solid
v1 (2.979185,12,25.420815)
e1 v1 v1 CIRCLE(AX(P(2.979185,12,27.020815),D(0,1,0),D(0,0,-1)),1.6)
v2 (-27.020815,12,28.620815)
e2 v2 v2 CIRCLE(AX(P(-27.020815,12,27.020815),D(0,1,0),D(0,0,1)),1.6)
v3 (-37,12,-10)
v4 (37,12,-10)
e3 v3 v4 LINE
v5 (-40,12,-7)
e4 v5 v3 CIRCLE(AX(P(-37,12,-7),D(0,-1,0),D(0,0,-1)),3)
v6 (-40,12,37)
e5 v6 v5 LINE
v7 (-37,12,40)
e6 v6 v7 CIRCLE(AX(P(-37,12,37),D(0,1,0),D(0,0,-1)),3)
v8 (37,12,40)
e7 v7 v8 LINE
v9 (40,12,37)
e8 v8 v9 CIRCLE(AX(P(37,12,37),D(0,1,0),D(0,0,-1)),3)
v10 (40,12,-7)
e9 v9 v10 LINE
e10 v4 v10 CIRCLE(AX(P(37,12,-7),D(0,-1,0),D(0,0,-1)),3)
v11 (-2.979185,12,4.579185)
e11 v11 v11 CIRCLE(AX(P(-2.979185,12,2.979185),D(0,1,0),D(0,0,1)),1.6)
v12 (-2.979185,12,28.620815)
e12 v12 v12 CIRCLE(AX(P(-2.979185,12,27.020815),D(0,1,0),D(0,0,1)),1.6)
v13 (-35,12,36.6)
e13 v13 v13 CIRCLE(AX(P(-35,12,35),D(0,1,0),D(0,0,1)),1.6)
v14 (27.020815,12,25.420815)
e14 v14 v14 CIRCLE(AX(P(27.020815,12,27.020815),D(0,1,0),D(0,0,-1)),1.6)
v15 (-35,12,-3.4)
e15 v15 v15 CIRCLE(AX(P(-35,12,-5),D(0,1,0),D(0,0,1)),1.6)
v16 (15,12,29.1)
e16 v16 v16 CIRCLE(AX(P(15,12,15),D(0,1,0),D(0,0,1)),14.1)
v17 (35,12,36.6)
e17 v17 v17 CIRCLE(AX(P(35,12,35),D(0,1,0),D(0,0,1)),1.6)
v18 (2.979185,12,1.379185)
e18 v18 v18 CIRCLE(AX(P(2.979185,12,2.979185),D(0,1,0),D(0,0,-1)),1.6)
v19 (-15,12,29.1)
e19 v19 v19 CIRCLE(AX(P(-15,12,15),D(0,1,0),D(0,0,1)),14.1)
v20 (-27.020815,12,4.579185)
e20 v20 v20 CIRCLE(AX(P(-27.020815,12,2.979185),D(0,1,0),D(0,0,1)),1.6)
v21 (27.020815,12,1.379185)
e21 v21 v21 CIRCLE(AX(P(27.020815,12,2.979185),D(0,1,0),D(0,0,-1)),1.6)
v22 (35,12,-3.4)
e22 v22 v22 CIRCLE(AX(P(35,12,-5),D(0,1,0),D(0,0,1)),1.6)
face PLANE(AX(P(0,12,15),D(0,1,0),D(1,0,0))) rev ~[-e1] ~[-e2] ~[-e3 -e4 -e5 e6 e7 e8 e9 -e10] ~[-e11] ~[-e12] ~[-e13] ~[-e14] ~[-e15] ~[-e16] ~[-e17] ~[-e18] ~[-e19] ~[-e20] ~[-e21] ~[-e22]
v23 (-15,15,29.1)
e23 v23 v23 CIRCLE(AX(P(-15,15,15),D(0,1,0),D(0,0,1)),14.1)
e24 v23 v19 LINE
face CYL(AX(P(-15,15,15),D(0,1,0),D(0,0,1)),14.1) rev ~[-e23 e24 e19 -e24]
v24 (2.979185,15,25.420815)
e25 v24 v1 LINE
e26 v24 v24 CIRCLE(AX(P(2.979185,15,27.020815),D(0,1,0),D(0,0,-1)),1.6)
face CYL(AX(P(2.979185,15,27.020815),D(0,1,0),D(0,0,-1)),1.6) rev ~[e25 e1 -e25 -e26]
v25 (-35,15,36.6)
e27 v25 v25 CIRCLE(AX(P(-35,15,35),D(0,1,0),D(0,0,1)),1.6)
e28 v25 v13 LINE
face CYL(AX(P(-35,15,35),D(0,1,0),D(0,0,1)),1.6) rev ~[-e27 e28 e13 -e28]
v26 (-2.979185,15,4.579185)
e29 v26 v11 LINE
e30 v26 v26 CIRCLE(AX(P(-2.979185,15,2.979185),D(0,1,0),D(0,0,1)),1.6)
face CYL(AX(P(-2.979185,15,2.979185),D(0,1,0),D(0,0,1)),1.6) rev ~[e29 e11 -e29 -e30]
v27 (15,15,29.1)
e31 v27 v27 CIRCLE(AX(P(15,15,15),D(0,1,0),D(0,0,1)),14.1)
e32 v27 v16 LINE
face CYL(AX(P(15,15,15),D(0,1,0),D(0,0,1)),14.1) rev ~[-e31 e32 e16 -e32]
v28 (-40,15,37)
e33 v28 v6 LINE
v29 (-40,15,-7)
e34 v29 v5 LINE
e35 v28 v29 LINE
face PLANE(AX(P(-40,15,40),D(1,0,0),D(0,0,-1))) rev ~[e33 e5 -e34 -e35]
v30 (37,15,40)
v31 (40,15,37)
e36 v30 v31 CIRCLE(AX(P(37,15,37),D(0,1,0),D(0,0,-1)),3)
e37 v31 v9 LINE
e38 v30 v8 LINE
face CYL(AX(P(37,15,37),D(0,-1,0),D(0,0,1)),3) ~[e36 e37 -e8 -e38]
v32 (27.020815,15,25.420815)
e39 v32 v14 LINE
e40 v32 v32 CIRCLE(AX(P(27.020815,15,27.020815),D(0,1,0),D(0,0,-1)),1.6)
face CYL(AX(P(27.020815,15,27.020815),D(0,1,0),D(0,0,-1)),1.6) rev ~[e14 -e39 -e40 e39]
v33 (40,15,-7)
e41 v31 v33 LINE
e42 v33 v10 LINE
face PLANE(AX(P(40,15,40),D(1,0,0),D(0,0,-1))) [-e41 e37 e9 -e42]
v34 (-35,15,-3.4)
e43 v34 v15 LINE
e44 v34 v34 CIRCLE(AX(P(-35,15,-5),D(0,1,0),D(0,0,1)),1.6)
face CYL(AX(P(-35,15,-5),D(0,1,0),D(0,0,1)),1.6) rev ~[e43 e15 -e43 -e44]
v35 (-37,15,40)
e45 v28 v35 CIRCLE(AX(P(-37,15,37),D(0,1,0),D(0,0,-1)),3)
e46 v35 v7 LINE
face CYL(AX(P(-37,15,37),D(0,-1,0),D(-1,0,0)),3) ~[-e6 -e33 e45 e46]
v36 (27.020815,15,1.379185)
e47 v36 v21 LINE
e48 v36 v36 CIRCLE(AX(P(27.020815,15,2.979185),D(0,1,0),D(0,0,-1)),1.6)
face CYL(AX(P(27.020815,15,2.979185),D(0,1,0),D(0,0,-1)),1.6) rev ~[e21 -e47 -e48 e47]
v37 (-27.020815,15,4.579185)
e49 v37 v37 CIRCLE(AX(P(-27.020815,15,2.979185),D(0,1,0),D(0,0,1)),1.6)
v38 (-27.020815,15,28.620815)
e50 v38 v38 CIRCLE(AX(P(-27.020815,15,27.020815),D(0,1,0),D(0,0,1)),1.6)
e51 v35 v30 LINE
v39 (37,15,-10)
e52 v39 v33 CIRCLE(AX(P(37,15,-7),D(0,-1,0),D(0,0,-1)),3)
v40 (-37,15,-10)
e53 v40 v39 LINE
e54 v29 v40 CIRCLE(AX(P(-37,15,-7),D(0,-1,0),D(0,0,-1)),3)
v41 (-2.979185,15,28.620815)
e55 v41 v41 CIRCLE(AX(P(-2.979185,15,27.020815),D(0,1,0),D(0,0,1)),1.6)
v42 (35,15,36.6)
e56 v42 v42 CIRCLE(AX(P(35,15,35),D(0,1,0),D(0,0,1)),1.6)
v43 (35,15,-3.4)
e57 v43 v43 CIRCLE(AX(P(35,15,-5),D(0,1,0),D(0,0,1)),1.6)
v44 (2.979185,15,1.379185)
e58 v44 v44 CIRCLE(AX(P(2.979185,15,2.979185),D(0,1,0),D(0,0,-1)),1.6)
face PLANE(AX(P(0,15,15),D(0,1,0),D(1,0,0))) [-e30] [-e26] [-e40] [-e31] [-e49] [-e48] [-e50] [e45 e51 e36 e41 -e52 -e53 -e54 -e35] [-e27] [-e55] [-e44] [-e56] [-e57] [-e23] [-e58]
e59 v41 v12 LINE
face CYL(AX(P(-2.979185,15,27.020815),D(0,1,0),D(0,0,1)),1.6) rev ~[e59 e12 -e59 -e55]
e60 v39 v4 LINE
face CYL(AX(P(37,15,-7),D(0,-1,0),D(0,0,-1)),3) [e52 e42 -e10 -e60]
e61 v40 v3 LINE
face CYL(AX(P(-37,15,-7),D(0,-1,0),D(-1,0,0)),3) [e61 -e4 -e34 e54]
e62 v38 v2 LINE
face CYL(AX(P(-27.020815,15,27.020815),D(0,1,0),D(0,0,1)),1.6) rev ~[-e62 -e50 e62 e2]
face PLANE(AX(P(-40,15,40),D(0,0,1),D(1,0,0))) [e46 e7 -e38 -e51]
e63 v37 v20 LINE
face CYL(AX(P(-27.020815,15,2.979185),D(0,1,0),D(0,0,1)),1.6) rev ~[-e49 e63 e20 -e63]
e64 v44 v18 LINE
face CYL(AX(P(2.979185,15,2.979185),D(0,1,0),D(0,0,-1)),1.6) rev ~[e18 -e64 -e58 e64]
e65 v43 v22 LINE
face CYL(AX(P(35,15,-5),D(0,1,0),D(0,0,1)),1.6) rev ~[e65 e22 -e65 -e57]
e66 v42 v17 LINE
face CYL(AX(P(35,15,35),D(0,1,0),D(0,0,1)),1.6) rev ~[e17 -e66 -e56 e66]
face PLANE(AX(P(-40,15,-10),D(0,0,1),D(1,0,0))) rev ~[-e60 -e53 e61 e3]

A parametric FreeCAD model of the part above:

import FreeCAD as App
import Part
import Sketcher
from FreeCAD import Vector


def edges_at(feature, points):
    """Names of the edges that pass closest to the given points."""
    edges = feature.Shape.Edges
    near = lambda p: min(range(len(edges)), key=lambda i: edges[i].distToShape(Part.Vertex(*p))[0])
    return sorted({f"Edge{near(p) + 1}" for p in points})

doc = App.newDocument("Part")
body = doc.addObject("PartDesign::Body", "Body")

sketch1 = body.newObject("Sketcher::SketchObject", "Sketch")
sketch1.AttachmentSupport = (doc.getObject("XY_Plane"), [""])
sketch1.MapMode = "FlatFace"
sketch1.addGeometry([
    Part.LineSegment(Vector(-30, 15, 0), Vector(-30, -15, 0)),
    Part.LineSegment(Vector(-30, -15, 0), Vector(30, -15, 0)),
    Part.LineSegment(Vector(30, -15, 0), Vector(30, 15, 0)),
    Part.LineSegment(Vector(30, 15, 0), Vector(-30, 15, 0)),
], False)
sketch1.addConstraint([
    Sketcher.Constraint("Coincident", 0, 2, 1, 1),
    Sketcher.Constraint("Coincident", 1, 2, 2, 1),
    Sketcher.Constraint("Coincident", 2, 2, 3, 1),
    Sketcher.Constraint("Coincident", 3, 2, 0, 1),
    Sketcher.Constraint("Vertical", 0),
    Sketcher.Constraint("Horizontal", 1),
    Sketcher.Constraint("Vertical", 2),
    Sketcher.Constraint("Horizontal", 3),
    Sketcher.Constraint("Symmetric", 0, 2, 2, 2, -1, 1),
    Sketcher.Constraint("DistanceX", 1, 1, 1, 2, 60.0),
    Sketcher.Constraint("DistanceY", 0, 2, 0, 1, 30.0),
])
pad1 = body.newObject("PartDesign::Pad", "Pad")
pad1.Profile = sketch1
pad1.Length = 30

sketch2 = body.newObject("Sketcher::SketchObject", "Sketch001")
sketch2.AttachmentSupport = (doc.getObject("XZ_Plane"), [""])
sketch2.MapMode = "FlatFace"
sketch2.AttachmentOffset = App.Placement(Vector(0, 0, 15), App.Rotation())
sketch2.addGeometry([
    Part.LineSegment(Vector(-30, 30, 0), Vector(-30, 0, 0)),
    Part.LineSegment(Vector(-30, 0, 0), Vector(30, 0, 0)),
    Part.LineSegment(Vector(30, 0, 0), Vector(30, 30, 0)),
    Part.LineSegment(Vector(30, 30, 0), Vector(-30, 30, 0)),
], False)
sketch2.addConstraint([
    Sketcher.Constraint("Coincident", 0, 2, 1, 1),
    Sketcher.Constraint("Coincident", 1, 2, 2, 1),
    Sketcher.Constraint("Coincident", 2, 2, 3, 1),
    Sketcher.Constraint("Coincident", 3, 2, 0, 1),
    Sketcher.Constraint("Vertical", 0),
    Sketcher.Constraint("Horizontal", 1),
    Sketcher.Constraint("Vertical", 2),
    Sketcher.Constraint("Horizontal", 3),
    Sketcher.Constraint("Symmetric", 0, 2, 1, 2, -1, 1),
    Sketcher.Constraint("DistanceX", 1, 1, 1, 2, 60.0),
    Sketcher.Constraint("DistanceY", 0, 2, 0, 1, 30.0),
])
pocket1 = body.newObject("PartDesign::Pocket", "Pocket")
pocket1.Profile = sketch2
pocket1.Length = 27

sketch3 = body.newObject("Sketcher::SketchObject", "Sketch002")
sketch3.AttachmentSupport = (doc.getObject("XZ_Plane"), [""])
sketch3.MapMode = "FlatFace"
sketch3.AttachmentOffset = App.Placement(Vector(0, 0, -15), App.Rotation())
sketch3.addGeometry([
    Part.Circle(Vector(-27.020815, 2.979185, 0), Vector(0, 0, 1), 1.6),
    Part.Circle(Vector(-2.979185, 2.979185, 0), Vector(0, 0, 1), 1.6),
    Part.Circle(Vector(-2.979185, 27.020815, 0), Vector(0, 0, 1), 1.6),
    Part.Circle(Vector(-27.020815, 27.020815, 0), Vector(0, 0, 1), 1.6),
    Part.Circle(Vector(27.020815, 27.020815, 0), Vector(0, 0, 1), 1.6),
    Part.Circle(Vector(2.979185, 27.020815, 0), Vector(0, 0, 1), 1.6),
    Part.Circle(Vector(2.979185, 2.979185, 0), Vector(0, 0, 1), 1.6),
    Part.Circle(Vector(27.020815, 2.979185, 0), Vector(0, 0, 1), 1.6),
    Part.Circle(Vector(-15, 15, 0), Vector(0, 0, 1), 14.1),
    Part.Circle(Vector(15, 15, 0), Vector(0, 0, 1), 14.1),
], False)
sketch3.addConstraint([
    Sketcher.Constraint("Equal", 0, 1),
    Sketcher.Constraint("Equal", 1, 2),
    Sketcher.Constraint("Equal", 2, 3),
    Sketcher.Constraint("Equal", 3, 4),
    Sketcher.Constraint("Equal", 4, 5),
    Sketcher.Constraint("Equal", 5, 6),
    Sketcher.Constraint("Equal", 6, 7),
    Sketcher.Constraint("Equal", 8, 9),
    Sketcher.Constraint("Symmetric", 3, 3, 4, 3, -2),
    Sketcher.Constraint("Symmetric", 2, 3, 5, 3, -2),
    Sketcher.Constraint("Symmetric", 1, 3, 6, 3, -2),
    Sketcher.Constraint("Symmetric", 0, 3, 7, 3, -2),
    Sketcher.Constraint("Symmetric", 8, 3, 9, 3, -2),
    Sketcher.Constraint("Horizontal", 0, 3, 1, 3),
    Sketcher.Constraint("Horizontal", 2, 3, 3, 3),
    Sketcher.Constraint("Vertical", 1, 3, 2, 3),
    Sketcher.Constraint("Vertical", 0, 3, 3, 3),
    Sketcher.Constraint("Diameter", 0, 3.2),
    Sketcher.Constraint("Diameter", 8, 28.2),
    Sketcher.Constraint("DistanceX", 8, 3, -1, 1, 15.0),
    Sketcher.Constraint("DistanceY", -1, 1, 8, 3, 15.0),
    Sketcher.Constraint("DistanceX", 2, 3, 4, 3, 30.0),
    Sketcher.Constraint("DistanceX", 0, 3, 1, 3, 24.041631),
    Sketcher.Constraint("DistanceY", 1, 3, 2, 3, 24.041631),
    Sketcher.Constraint("DistanceY", -1, 1, 0, 3, 2.979185),
])
pocket2 = body.newObject("PartDesign::Pocket", "Pocket001")
pocket2.Profile = sketch3
pocket2.Type = "ThroughAll"
pocket2.Reversed = True

sketch4 = body.newObject("Sketcher::SketchObject", "Sketch003")
sketch4.AttachmentSupport = (doc.getObject("XZ_Plane"), [""])
sketch4.MapMode = "FlatFace"
sketch4.AttachmentOffset = App.Placement(Vector(0, 0, -15), App.Rotation())
sketch4.addGeometry([
    Part.LineSegment(Vector(-40, -10, 0), Vector(-40, 40, 0)),
    Part.LineSegment(Vector(-40, 40, 0), Vector(40, 40, 0)),
    Part.LineSegment(Vector(40, 40, 0), Vector(40, -10, 0)),
    Part.LineSegment(Vector(40, -10, 0), Vector(-40, -10, 0)),
    Part.LineSegment(Vector(30, 30, 0), Vector(-30, 30, 0)),
    Part.LineSegment(Vector(-30, 30, 0), Vector(-30, 0, 0)),
    Part.LineSegment(Vector(-30, 0, 0), Vector(30, 0, 0)),
    Part.LineSegment(Vector(30, 0, 0), Vector(30, 30, 0)),
], False)
sketch4.addConstraint([
    Sketcher.Constraint("Coincident", 0, 2, 1, 1),
    Sketcher.Constraint("Coincident", 1, 2, 2, 1),
    Sketcher.Constraint("Coincident", 2, 2, 3, 1),
    Sketcher.Constraint("Coincident", 3, 2, 0, 1),
    Sketcher.Constraint("Coincident", 4, 2, 5, 1),
    Sketcher.Constraint("Coincident", 5, 2, 6, 1),
    Sketcher.Constraint("Coincident", 6, 2, 7, 1),
    Sketcher.Constraint("Coincident", 7, 2, 4, 1),
    Sketcher.Constraint("Vertical", 0),
    Sketcher.Constraint("Horizontal", 1),
    Sketcher.Constraint("Vertical", 2),
    Sketcher.Constraint("Horizontal", 3),
    Sketcher.Constraint("Horizontal", 4),
    Sketcher.Constraint("Vertical", 5),
    Sketcher.Constraint("Horizontal", 6),
    Sketcher.Constraint("Vertical", 7),
    Sketcher.Constraint("Symmetric", 5, 2, 6, 2, -1, 1),
    Sketcher.Constraint("DistanceX", 1, 1, 1, 2, 80.0),
    Sketcher.Constraint("DistanceX", 4, 2, 4, 1, 60.0),
    Sketcher.Constraint("DistanceY", 0, 1, 0, 2, 50.0),
    Sketcher.Constraint("DistanceY", 5, 2, 5, 1, 30.0),
    Sketcher.Constraint("DistanceX", 0, 2, -1, 1, 40.0),
    Sketcher.Constraint("DistanceY", -1, 1, 0, 2, 40.0),
])
pad2 = body.newObject("PartDesign::Pad", "Pad001")
pad2.Profile = sketch4
pad2.Length = 3

sketch5 = body.newObject("Sketcher::SketchObject", "Sketch004")
sketch5.AttachmentSupport = (doc.getObject("XZ_Plane"), [""])
sketch5.MapMode = "FlatFace"
sketch5.AttachmentOffset = App.Placement(Vector(0, 0, -15), App.Rotation())
sketch5.addGeometry([
    Part.Circle(Vector(-35, -5, 0), Vector(0, 0, 1), 1.6),
    Part.Circle(Vector(35, -5, 0), Vector(0, 0, 1), 1.6),
    Part.Circle(Vector(35, 35, 0), Vector(0, 0, 1), 1.6),
    Part.Circle(Vector(-35, 35, 0), Vector(0, 0, 1), 1.6),
], False)
sketch5.addConstraint([
    Sketcher.Constraint("Equal", 0, 1),
    Sketcher.Constraint("Equal", 1, 2),
    Sketcher.Constraint("Equal", 2, 3),
    Sketcher.Constraint("Symmetric", 0, 3, 1, 3, -2),
    Sketcher.Constraint("Symmetric", 2, 3, 3, 3, -2),
    Sketcher.Constraint("Vertical", 1, 3, 2, 3),
    Sketcher.Constraint("Diameter", 0, 3.2),
    Sketcher.Constraint("DistanceX", 0, 3, -1, 1, 35.0),
    Sketcher.Constraint("DistanceY", 0, 3, -1, 1, 5.0),
    Sketcher.Constraint("DistanceY", -1, 1, 2, 3, 35.0),
])
pocket3 = body.newObject("PartDesign::Pocket", "Pocket002")
pocket3.Profile = sketch5
pocket3.Length = 3
pocket3.Reversed = True
doc.recompute()

fillet = body.newObject("PartDesign::Fillet", "Fillet")
fillet.Base = (pocket3, edges_at(pocket3, [
    (40, 13.5, -10),
    (40, 13.5, 40),
    (-40, 13.5, 40),
    (-40, 13.5, -10),
]))
fillet.Radius = 3

doc.recompute()
